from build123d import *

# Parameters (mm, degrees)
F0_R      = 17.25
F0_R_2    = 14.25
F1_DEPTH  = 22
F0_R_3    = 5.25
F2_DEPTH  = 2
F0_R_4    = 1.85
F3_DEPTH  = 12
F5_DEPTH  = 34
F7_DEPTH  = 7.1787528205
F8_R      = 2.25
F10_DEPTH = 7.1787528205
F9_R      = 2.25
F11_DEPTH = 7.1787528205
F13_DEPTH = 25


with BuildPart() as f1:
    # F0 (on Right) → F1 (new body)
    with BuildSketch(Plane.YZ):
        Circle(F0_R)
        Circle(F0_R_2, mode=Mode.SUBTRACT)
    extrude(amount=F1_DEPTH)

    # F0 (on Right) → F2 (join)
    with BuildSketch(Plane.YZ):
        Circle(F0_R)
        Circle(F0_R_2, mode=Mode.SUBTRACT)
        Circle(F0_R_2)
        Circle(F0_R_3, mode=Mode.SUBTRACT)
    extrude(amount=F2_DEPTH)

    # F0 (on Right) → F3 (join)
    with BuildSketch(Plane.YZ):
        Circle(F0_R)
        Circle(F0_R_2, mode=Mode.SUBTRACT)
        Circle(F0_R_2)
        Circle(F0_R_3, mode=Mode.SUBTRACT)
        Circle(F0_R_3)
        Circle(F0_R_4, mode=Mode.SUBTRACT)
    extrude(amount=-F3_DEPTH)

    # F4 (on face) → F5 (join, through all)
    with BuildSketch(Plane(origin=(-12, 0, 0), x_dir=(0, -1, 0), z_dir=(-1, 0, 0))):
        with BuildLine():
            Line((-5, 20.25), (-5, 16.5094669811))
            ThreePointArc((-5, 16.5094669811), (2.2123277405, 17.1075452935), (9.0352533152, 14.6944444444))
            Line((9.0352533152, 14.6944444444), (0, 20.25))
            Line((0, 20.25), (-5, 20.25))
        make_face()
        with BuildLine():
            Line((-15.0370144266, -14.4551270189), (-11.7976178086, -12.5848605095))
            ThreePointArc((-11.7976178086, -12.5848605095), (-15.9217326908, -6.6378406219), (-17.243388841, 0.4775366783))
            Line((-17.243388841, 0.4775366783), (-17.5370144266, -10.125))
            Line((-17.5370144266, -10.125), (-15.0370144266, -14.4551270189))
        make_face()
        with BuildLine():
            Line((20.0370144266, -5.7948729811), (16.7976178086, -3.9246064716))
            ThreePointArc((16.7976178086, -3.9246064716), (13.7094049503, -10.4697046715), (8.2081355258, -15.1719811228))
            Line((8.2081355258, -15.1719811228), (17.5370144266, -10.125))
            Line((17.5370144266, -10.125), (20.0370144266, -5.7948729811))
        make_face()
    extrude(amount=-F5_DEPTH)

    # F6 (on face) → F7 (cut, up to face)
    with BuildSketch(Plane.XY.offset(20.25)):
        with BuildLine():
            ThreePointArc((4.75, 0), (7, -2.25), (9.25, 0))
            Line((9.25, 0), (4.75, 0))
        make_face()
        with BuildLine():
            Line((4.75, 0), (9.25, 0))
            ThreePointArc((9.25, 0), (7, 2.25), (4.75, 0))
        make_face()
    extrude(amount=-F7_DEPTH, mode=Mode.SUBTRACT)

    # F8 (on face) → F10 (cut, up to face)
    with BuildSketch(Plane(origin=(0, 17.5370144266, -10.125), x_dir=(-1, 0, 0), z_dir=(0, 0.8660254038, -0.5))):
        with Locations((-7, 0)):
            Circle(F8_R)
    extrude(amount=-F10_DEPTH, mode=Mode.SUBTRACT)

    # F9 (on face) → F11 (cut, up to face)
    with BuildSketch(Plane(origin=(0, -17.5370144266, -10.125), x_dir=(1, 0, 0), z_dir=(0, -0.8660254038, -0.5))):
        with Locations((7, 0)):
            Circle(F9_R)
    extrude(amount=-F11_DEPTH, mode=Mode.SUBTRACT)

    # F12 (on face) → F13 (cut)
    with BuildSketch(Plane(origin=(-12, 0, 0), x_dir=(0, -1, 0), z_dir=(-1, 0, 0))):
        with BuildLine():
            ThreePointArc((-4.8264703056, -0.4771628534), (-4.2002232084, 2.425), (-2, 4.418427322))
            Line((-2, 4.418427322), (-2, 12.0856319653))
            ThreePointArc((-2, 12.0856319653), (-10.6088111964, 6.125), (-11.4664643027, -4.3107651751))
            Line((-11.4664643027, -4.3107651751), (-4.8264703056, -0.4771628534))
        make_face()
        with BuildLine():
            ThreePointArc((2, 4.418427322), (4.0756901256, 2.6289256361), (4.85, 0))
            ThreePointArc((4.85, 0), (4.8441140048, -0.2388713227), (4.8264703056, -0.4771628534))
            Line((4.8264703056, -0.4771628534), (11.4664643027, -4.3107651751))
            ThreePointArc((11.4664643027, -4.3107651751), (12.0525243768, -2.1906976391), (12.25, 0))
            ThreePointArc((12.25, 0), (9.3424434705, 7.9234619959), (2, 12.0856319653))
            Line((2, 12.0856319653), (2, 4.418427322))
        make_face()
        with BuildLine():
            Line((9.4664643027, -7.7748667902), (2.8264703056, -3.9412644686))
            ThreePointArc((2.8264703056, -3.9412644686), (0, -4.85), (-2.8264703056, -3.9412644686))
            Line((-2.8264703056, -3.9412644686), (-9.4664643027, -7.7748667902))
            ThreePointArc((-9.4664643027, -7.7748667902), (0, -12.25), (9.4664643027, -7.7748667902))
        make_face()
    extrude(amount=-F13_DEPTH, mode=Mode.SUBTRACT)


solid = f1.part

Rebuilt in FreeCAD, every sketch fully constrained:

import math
import FreeCAD as App
import Part
import Sketcher
Q = App.Units.Quantity

doc = App.newDocument("Part")
params = doc.addObject("Spreadsheet::Sheet", "Params")
for row, (alias, value) in enumerate([
    ("sketch1_diameter", "34.5 mm"),
    ("sketch1_diameter2", "28.5 mm"),
    ("pad1_length", "22 mm"),
    ("sketch2_diameter", "34.5 mm"),
    ("sketch2_diameter2", "10.5 mm"),
    ("pad2_length", "2 mm"),
    ("sketch3_diameter", "34.5 mm"),
    ("sketch3_diameter2", "3.7 mm"),
    ("pad3_length", "12 mm"),
    ("sketch4_width", "5 mm"),
    ("sketch4_radius", "17.25 mm"),
    ("sketch4_length", "5 mm"),
    ("pad4_length", "34 mm"),
    ("sketch5_diameter", "4.5 mm"),
    ("pocket1_length", "7.178753 mm"),
    ("sketch6_diameter", "4.5 mm"),
    ("pocket2_length", "7.178753 mm"),
    ("sketch7_diameter", "4.5 mm"),
    ("pocket3_length", "7.178753 mm"),
    ("sketch8_radius", "4.85 mm"),
    ("sketch8_radius2", "12.25 mm"),
    ("pocket4_length", "25 mm"),
], start=1):
    params.set(f"A{row}", alias)
    params.set(f"B{row}", "=" + value)
    params.setAlias(f"B{row}", alias)

body = doc.addObject("PartDesign::Body", "Body")

sketch1 = doc.addObject("Sketcher::SketchObject", "Sketch")
body.addObject(sketch1)
sketch1.AttachmentSupport = (doc.YZ_Plane, [""])
sketch1.MapMode = "FlatFace"
sketch1.addGeometry([
    Part.Circle(App.Vector(0, 0, 0), App.Vector(0, 0, 1), 17),
    Part.Circle(App.Vector(0, 0, 0), App.Vector(0, 0, 1), 14),
], False)
sketch1.addConstraint([
    Sketcher.Constraint("Coincident", 0, 3, -1, 1),
    Sketcher.Constraint("Coincident", 1, 3, -1, 1),
    Sketcher.Constraint("Diameter", 0, Q("34.5 mm")),
    Sketcher.Constraint("Diameter", 1, Q("28.5 mm")),
])
sketch1.setExpression("Constraints[2]", "Params.sketch1_diameter")
sketch1.setExpression("Constraints[3]", "Params.sketch1_diameter2")
pad1 = doc.addObject("PartDesign::Pad", "Pad")
body.addObject(pad1)
pad1.Profile = sketch1
pad1.setExpression("Length", "Params.pad1_length")

sketch2 = doc.addObject("Sketcher::SketchObject", "Sketch001")
body.addObject(sketch2)
sketch2.AttachmentSupport = (doc.YZ_Plane, [""])
sketch2.MapMode = "FlatFace"
sketch2.addGeometry([
    Part.Circle(App.Vector(0, 0, 0), App.Vector(0, 0, 1), 17),
    Part.Circle(App.Vector(0, 0, 0), App.Vector(0, 0, 1), 5),
], False)
sketch2.addConstraint([
    Sketcher.Constraint("Coincident", 0, 3, -1, 1),
    Sketcher.Constraint("Coincident", 1, 3, -1, 1),
    Sketcher.Constraint("Diameter", 0, Q("34.5 mm")),
    Sketcher.Constraint("Diameter", 1, Q("10.5 mm")),
])
sketch2.setExpression("Constraints[2]", "Params.sketch2_diameter")
sketch2.setExpression("Constraints[3]", "Params.sketch2_diameter2")
pad2 = doc.addObject("PartDesign::Pad", "Pad001")
body.addObject(pad2)
pad2.Profile = sketch2
pad2.setExpression("Length", "Params.pad2_length")

sketch3 = doc.addObject("Sketcher::SketchObject", "Sketch002")
body.addObject(sketch3)
sketch3.AttachmentSupport = (doc.YZ_Plane, [""])
sketch3.MapMode = "FlatFace"
sketch3.addGeometry([
    Part.Circle(App.Vector(0, 0, 0), App.Vector(0, 0, 1), 17.2),
    Part.Circle(App.Vector(0, 0, 0), App.Vector(0, 0, 1), 1.9),
], False)
sketch3.addConstraint([
    Sketcher.Constraint("Coincident", 0, 3, -1, 1),
    Sketcher.Constraint("Coincident", 1, 3, -1, 1),
    Sketcher.Constraint("Diameter", 0, Q("34.5 mm")),
    Sketcher.Constraint("Diameter", 1, Q("3.7 mm")),
])
sketch3.setExpression("Constraints[2]", "Params.sketch3_diameter")
sketch3.setExpression("Constraints[3]", "Params.sketch3_diameter2")
pad3 = doc.addObject("PartDesign::Pad", "Pad002")
body.addObject(pad3)
pad3.Profile = sketch3
pad3.setExpression("Length", "Params.pad3_length")
pad3.Reversed = True

sketch4 = doc.addObject("Sketcher::SketchObject", "Sketch003")
body.addObject(sketch4)
sketch4.AttachmentSupport = (doc.YZ_Plane, [""])
sketch4.MapMode = "FlatFace"
sketch4.AttachmentOffset = App.Placement(App.Vector(0, 0, -12), App.Rotation())
sketch4.addGeometry([
    Part.LineSegment(App.Vector(5, 20.2, 0), App.Vector(5, 16.5, 0)),
    Part.ArcOfCircle(Part.Circle(App.Vector(0, 0, 0), App.Vector(0, 0, 1), 17.2), math.radians(73), math.radians(122)),
    Part.LineSegment(App.Vector(-9, 14.7, 0), App.Vector(0, 20.2, 0)),
    Part.LineSegment(App.Vector(0, 20.2, 0), App.Vector(5, 20.2, 0)),
    Part.LineSegment(App.Vector(15, -14.5, 0), App.Vector(11.8, -12.6, 0)),
    Part.ArcOfCircle(Part.Circle(App.Vector(0, 0, 0), App.Vector(0, 0, 1), 17.3), math.radians(-47), math.radians(2)),
    Part.LineSegment(App.Vector(17.2, 0.5, 0), App.Vector(17.5, -10.1, 0)),
    Part.LineSegment(App.Vector(17.5, -10.1, 0), App.Vector(15, -14.5, 0)),
    Part.LineSegment(App.Vector(-20, -5.8, 0), App.Vector(-16.8, -3.9, 0)),
    Part.ArcOfCircle(Part.Circle(App.Vector(0, 0, 0), App.Vector(0, 0, 1), 17.2), math.radians(-167), math.radians(-118)),
    Part.LineSegment(App.Vector(-8.2, -15.2, 0), App.Vector(-17.5, -10.1, 0)),
    Part.LineSegment(App.Vector(-17.5, -10.1, 0), App.Vector(-20, -5.8, 0)),
], False)
sketch4.addConstraint([
    Sketcher.Constraint("Coincident", 0, 2, 1, 1),
    Sketcher.Constraint("Tangent", 1, 2, 2, 1),
    Sketcher.Constraint("Coincident", 2, 2, 3, 1),
    Sketcher.Constraint("Coincident", 3, 2, 0, 1),
    Sketcher.Constraint("Coincident", 4, 2, 5, 1),
    Sketcher.Constraint("Tangent", 5, 2, 6, 1),
    Sketcher.Constraint("Coincident", 6, 2, 7, 1),
    Sketcher.Constraint("Coincident", 7, 2, 4, 1),
    Sketcher.Constraint("Coincident", 8, 2, 9, 1),
    Sketcher.Constraint("Tangent", 9, 2, 10, 1),
    Sketcher.Constraint("Coincident", 10, 2, 11, 1),
    Sketcher.Constraint("Coincident", 11, 2, 8, 1),
    Sketcher.Constraint("Vertical", 0),
    Sketcher.Constraint("Horizontal", 3),
    Sketcher.Constraint("Coincident", 1, 3, -1, 1),
    Sketcher.Constraint("Coincident", 5, 3, -1, 1),
    Sketcher.Constraint("Coincident", 9, 3, -1, 1),
    Sketcher.Constraint("Equal", 1, 5),
    Sketcher.Constraint("Equal", 5, 9),
    Sketcher.Constraint("Symmetric", 6, 2, 10, 2, -2),
    Sketcher.Constraint("PointOnObject", 2, 2, -2),
    Sketcher.Constraint("Perpendicular", 4, 7),
    Sketcher.Constraint("Perpendicular", 8, 11),
    Sketcher.Constraint("Equal", 2, 6),
    Sketcher.Constraint("Equal", 4, 8),
    Sketcher.Constraint("Equal", 7, 11),
    Sketcher.Constraint("DistanceX", 3, 1, 3, 2, Q("5 mm")),
    Sketcher.Constraint("Angle", 4, Q("150 deg")),
    Sketcher.Constraint("Angle", 8, Q("30 deg")),
    Sketcher.Constraint("Radius", 1, Q("17.25 mm")),
    Sketcher.Constraint("Distance", 7, Q("5 mm")),
    Sketcher.Constraint("DistanceY", -1, 1, 2, 2, Q("20.25 mm")),
])
sketch4.setExpression("Constraints[26]", "Params.sketch4_width")
sketch4.setExpression("Constraints[29]", "Params.sketch4_radius")
sketch4.setExpression("Constraints[30]", "Params.sketch4_length")
pad4 = doc.addObject("PartDesign::Pad", "Pad003")
body.addObject(pad4)
pad4.Profile = sketch4
pad4.setExpression("Length", "Params.pad4_length")

sketch5 = doc.addObject("Sketcher::SketchObject", "Sketch004")
body.addObject(sketch5)
sketch5.AttachmentSupport = (doc.XY_Plane, [""])
sketch5.MapMode = "FlatFace"
sketch5.AttachmentOffset = App.Placement(App.Vector(0, 0, 20.25), App.Rotation())
sketch5.addGeometry(Part.Circle(App.Vector(7, 0, 0), App.Vector(0, 0, 1), 2.2), False)
sketch5.addConstraint([
    Sketcher.Constraint("PointOnObject", 0, 3, -1),
    Sketcher.Constraint("Diameter", 0, Q("4.5 mm")),
    Sketcher.Constraint("DistanceX", -1, 1, 0, 3, Q("7 mm")),
])
sketch5.setExpression("Constraints[1]", "Params.sketch5_diameter")
pocket1 = doc.addObject("PartDesign::Pocket", "Pocket")
body.addObject(pocket1)
pocket1.Profile = sketch5
pocket1.setExpression("Length", "Params.pocket1_length")

sketch6 = doc.addObject("Sketcher::SketchObject", "Sketch005")
body.addObject(sketch6)
sketch6.Placement = App.Placement(App.Vector(0, 17.537014, -10.125), App.Rotation(App.Vector(-1, 0, 0), App.Vector(0, 0.5, 0.866025404), App.Vector(0, 0.866025404, -0.5), "ZXY"))
sketch6.addGeometry(Part.Circle(App.Vector(-7, 0, 0), App.Vector(0, 0, 1), 2.2), False)
sketch6.addConstraint([
    Sketcher.Constraint("PointOnObject", 0, 3, -1),
    Sketcher.Constraint("Diameter", 0, Q("4.5 mm")),
    Sketcher.Constraint("DistanceX", 0, 3, -1, 1, Q("7 mm")),
])
sketch6.setExpression("Constraints[1]", "Params.sketch6_diameter")
pocket2 = doc.addObject("PartDesign::Pocket", "Pocket001")
body.addObject(pocket2)
pocket2.Profile = sketch6
pocket2.setExpression("Length", "Params.pocket2_length")

sketch7 = doc.addObject("Sketcher::SketchObject", "Sketch006")
body.addObject(sketch7)
sketch7.Placement = App.Placement(App.Vector(0, -17.537014, -10.125), App.Rotation(App.Vector(1, 0, 0), App.Vector(0, -0.5, 0.866025404), App.Vector(0, -0.866025404, -0.5), "ZXY"))
sketch7.addGeometry(Part.Circle(App.Vector(7, 0, 0), App.Vector(0, 0, 1), 2.2), False)
sketch7.addConstraint([
    Sketcher.Constraint("PointOnObject", 0, 3, -1),
    Sketcher.Constraint("Diameter", 0, Q("4.5 mm")),
    Sketcher.Constraint("DistanceX", -1, 1, 0, 3, Q("7 mm")),
])
sketch7.setExpression("Constraints[1]", "Params.sketch7_diameter")
pocket3 = doc.addObject("PartDesign::Pocket", "Pocket002")
body.addObject(pocket3)
pocket3.Profile = sketch7
pocket3.setExpression("Length", "Params.pocket3_length")

sketch8 = doc.addObject("Sketcher::SketchObject", "Sketch007")
body.addObject(sketch8)
sketch8.AttachmentSupport = (doc.YZ_Plane, [""])
sketch8.MapMode = "FlatFace"
sketch8.AttachmentOffset = App.Placement(App.Vector(0, 0, -12), App.Rotation())
sketch8.addGeometry([
    Part.ArcOfCircle(Part.Circle(App.Vector(0, 0, 0), App.Vector(0, 0, 1), 4.85), math.radians(-6), math.radians(66)),
    Part.LineSegment(App.Vector(2, 4.42, 0), App.Vector(2, 12.09, 0)),
    Part.ArcOfCircle(Part.Circle(App.Vector(0, 0, 0), App.Vector(0, 0, 1), 12.25), math.radians(-21), math.radians(81)),
    Part.LineSegment(App.Vector(11.47, -4.31, 0), App.Vector(4.83, -0.48, 0)),
    Part.ArcOfCircle(Part.Circle(App.Vector(0, 0, 0), App.Vector(0, 0, 1), 4.85), math.radians(114), math.radians(180)),
    Part.ArcOfCircle(Part.Circle(App.Vector(0, 0, 0), App.Vector(0, 0, 1), 4.85), math.radians(180), math.radians(185.65)),
    Part.LineSegment(App.Vector(-4.83, -0.48, 0), App.Vector(-11.47, -4.31, 0)),
    Part.ArcOfCircle(Part.Circle(App.Vector(0, 0, 0), App.Vector(0, 0, 1), 12.25), math.radians(180), math.radians(201)),
    Part.ArcOfCircle(Part.Circle(App.Vector(0, 0, 0), App.Vector(0, 0, 1), 12.25), math.radians(99), math.radians(180)),
    Part.LineSegment(App.Vector(-2, 12.09, 0), App.Vector(-2, 4.42, 0)),
    Part.LineSegment(App.Vector(-9.47, -7.77, 0), App.Vector(-2.83, -3.94, 0)),
    Part.ArcOfCircle(Part.Circle(App.Vector(0, 0, 0), App.Vector(0, 0, 1), 4.85), math.radians(-126), math.radians(-54)),
    Part.LineSegment(App.Vector(2.83, -3.94, 0), App.Vector(9.47, -7.77, 0)),
    Part.ArcOfCircle(Part.Circle(App.Vector(0, 0, 0), App.Vector(0, 0, 1), 12.25), math.radians(-141), math.radians(-39)),
], False)
sketch8.addConstraint([
    Sketcher.Constraint("Coincident", 0, 2, 1, 1),
    Sketcher.Constraint("Coincident", 1, 2, 2, 2),
    Sketcher.Constraint("Coincident", 2, 1, 3, 1),
    Sketcher.Constraint("Coincident", 3, 2, 0, 1),
    Sketcher.Constraint("Tangent", 4, 2, 5, 1),
    Sketcher.Constraint("Coincident", 5, 2, 6, 1),
    Sketcher.Constraint("Coincident", 6, 2, 7, 2),
    Sketcher.Constraint("Tangent", 7, 1, 8, 2),
    Sketcher.Constraint("Coincident", 8, 1, 9, 1),
    Sketcher.Constraint("Coincident", 9, 2, 4, 1),
    Sketcher.Constraint("Coincident", 10, 2, 11, 1),
    Sketcher.Constraint("Coincident", 11, 2, 12, 1),
    Sketcher.Constraint("Coincident", 12, 2, 13, 2),
    Sketcher.Constraint("Coincident", 13, 1, 10, 1),
    Sketcher.Constraint("Vertical", 1),
    Sketcher.Constraint("Vertical", 9),
    Sketcher.Constraint("Coincident", 0, 3, -1, 1),
    Sketcher.Constraint("Coincident", 2, 3, -1, 1),
    Sketcher.Constraint("Coincident", 4, 3, -1, 1),
    Sketcher.Constraint("Coincident", 7, 3, -1, 1),
    Sketcher.Constraint("Coincident", 11, 3, -1, 1),
    Sketcher.Constraint("Coincident", 13, 3, -1, 1),
    Sketcher.Constraint("Equal", 0, 4),
    Sketcher.Constraint("Equal", 4, 5),
    Sketcher.Constraint("Equal", 2, 7),
    Sketcher.Constraint("Equal", 7, 8),
    Sketcher.Constraint("Equal", 5, 11),
    Sketcher.Constraint("Equal", 8, 13),
    Sketcher.Constraint("PointOnObject", 4, 2, -1),
    Sketcher.Constraint("PointOnObject", 7, 1, -1),
    Sketcher.Constraint("Parallel", 6, 10),
    Sketcher.Constraint("Parallel", 3, 12),
    Sketcher.Constraint("Horizontal", 3, 2, 5, 2),
    Sketcher.Constraint("Horizontal", 2, 1, 6, 2),
    Sketcher.Constraint("Horizontal", 1, 2, 8, 1),
    Sketcher.Constraint("Horizontal", 10, 2, 11, 2),
    Sketcher.Constraint("Equal", 6, 10),
    Sketcher.Constraint("Angle", 3, Q("150 deg")),
    Sketcher.Constraint("Radius", 0, Q("4.85 mm")),
    Sketcher.Constraint("Radius", 2, Q("12.25 mm")),
    Sketcher.Constraint("DistanceX", -1, 1, 0, 2, Q("2 mm")),
    Sketcher.Constraint("DistanceX", 5, 2, 10, 2, Q("2 mm")),
])
sketch8.setExpression("Constraints[38]", "Params.sketch8_radius")
sketch8.setExpression("Constraints[39]", "Params.sketch8_radius2")
pocket4 = doc.addObject("PartDesign::Pocket", "Pocket003")
body.addObject(pocket4)
pocket4.Profile = sketch8
pocket4.setExpression("Length", "Params.pocket4_length")
pocket4.Reversed = True

doc.recompute()
